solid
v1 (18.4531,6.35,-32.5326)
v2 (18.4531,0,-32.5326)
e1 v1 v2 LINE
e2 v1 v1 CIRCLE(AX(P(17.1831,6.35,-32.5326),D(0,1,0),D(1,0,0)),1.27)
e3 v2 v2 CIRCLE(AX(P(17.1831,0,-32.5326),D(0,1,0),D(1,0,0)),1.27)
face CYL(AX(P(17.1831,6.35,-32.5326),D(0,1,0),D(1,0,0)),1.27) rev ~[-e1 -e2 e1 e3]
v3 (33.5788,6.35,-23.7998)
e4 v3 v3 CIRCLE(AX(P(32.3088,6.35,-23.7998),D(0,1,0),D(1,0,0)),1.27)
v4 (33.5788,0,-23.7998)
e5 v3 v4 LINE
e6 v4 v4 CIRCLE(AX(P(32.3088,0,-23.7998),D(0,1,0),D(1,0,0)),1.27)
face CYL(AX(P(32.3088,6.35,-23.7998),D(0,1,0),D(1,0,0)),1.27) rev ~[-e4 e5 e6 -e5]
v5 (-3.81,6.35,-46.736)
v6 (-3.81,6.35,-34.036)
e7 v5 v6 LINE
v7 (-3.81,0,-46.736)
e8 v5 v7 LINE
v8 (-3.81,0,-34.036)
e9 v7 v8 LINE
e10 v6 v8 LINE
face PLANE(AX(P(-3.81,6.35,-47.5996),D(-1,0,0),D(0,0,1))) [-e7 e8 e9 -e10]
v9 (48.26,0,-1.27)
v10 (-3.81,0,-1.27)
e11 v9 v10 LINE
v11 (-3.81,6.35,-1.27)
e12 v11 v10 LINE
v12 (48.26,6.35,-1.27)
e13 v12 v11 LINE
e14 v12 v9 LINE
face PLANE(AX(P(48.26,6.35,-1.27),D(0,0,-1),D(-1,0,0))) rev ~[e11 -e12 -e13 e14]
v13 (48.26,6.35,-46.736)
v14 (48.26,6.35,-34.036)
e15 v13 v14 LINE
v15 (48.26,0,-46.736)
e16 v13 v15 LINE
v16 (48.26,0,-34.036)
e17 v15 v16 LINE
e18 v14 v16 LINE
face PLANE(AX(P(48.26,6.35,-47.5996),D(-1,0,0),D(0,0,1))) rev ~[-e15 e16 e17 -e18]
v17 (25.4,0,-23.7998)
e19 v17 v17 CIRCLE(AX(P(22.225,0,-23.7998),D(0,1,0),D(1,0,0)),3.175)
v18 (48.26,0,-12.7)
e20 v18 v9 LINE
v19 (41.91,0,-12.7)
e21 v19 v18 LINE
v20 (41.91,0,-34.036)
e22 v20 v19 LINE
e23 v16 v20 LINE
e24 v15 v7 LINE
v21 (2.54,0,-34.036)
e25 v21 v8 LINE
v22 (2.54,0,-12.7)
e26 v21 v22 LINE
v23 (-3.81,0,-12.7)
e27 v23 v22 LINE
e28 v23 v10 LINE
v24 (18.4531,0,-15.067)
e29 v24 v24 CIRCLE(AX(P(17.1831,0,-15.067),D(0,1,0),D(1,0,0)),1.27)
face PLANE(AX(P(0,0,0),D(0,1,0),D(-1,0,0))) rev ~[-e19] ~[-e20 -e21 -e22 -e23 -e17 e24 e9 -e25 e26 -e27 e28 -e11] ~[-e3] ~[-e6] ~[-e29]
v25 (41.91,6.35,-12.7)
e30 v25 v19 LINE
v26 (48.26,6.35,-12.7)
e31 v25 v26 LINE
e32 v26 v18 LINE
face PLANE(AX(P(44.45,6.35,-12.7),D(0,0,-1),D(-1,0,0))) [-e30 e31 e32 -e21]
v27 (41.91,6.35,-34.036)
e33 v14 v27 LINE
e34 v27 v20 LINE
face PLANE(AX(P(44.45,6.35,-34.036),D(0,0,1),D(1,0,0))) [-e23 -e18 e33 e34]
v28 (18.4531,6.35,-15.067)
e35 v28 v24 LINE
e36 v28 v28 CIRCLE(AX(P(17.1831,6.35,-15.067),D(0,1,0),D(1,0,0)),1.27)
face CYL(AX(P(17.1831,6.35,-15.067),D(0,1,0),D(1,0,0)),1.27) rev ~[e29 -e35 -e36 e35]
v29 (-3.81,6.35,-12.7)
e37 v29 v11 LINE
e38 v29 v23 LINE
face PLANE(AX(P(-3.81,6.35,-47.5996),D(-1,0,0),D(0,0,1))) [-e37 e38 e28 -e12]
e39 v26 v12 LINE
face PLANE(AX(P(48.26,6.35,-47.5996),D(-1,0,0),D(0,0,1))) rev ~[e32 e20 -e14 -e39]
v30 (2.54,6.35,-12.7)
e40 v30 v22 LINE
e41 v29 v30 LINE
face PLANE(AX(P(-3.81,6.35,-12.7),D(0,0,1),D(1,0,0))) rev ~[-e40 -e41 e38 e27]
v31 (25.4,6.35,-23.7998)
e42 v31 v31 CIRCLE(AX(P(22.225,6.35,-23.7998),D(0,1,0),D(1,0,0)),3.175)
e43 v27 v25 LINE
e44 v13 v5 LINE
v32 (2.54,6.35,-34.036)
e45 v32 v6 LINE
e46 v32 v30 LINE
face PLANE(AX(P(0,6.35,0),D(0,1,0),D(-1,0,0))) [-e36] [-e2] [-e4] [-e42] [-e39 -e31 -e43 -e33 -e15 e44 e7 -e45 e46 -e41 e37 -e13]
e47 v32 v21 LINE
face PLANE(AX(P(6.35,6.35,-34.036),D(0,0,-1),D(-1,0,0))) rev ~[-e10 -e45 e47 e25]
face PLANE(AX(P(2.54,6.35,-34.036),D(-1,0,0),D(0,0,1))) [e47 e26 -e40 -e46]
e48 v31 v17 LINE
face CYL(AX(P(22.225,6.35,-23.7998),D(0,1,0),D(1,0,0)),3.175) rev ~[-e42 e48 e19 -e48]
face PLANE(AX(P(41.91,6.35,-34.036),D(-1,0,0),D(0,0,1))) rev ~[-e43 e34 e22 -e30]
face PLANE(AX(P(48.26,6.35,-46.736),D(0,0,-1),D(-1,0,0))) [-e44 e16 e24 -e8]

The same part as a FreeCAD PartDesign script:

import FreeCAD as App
import Part
import Sketcher
from FreeCAD import Vector
Q = App.Units.Quantity

doc = App.newDocument("Part")
params = doc.addObject("Spreadsheet::Sheet", "Params")
for row, (alias, value) in enumerate([
    ("sketch1_width", "1.75 in"),
    ("sketch1_height", "1.874 in"),
    ("pad1_length", "0.25 in"),
    ("sketch2_width", "0.25 in"),
    ("sketch2_height", "0.84 in"),
    ("pocket1_length", "0.25 in"),
    ("sketch3_diameter", "0.1 in"),
    ("sketch3_diameter2", "0.25 in"),
    ("pocket2_length", "0.25 in"),
    ("sketch4_width", "0.15 in"),
    ("sketch4_height", "0.84 in"),
    ("sketch4_height2", "1.874 in"),
    ("pad2_length", "0.25 in"),
    ("sketch5_width", "0.15 in"),
    ("sketch5_height", "0.84 in"),
    ("pocket3_length", "0.25 in"),
    ("sketch6_height", "0.05 in"),
    ("sketch6_height2", "0.034 in"),
    ("sketch6_width", "2.05 in"),
    ("pocket4_length", "1 in"),
], start=1):
    params.set(f"A{row}", alias)
    params.set(f"B{row}", "=" + value)
    params.setAlias(f"B{row}", alias)

body = doc.addObject("PartDesign::Body", "Body")

sketch1 = body.newObject("Sketcher::SketchObject", "Sketch")
sketch1.AttachmentSupport = (doc.getObject("XZ_Plane"), [""])
sketch1.MapMode = "FlatFace"
sketch1.addGeometry(Part.LineSegment(Vector(0, -48, 0), Vector(0, 0, 0)), False)
sketch1.addGeometry(Part.LineSegment(Vector(0, 0, 0), Vector(44, 0, 0)), False)
sketch1.addGeometry(Part.LineSegment(Vector(44, 0, 0), Vector(44, -48, 0)), False)
sketch1.addGeometry(Part.LineSegment(Vector(44, -48, 0), Vector(0, -48, 0)), False)
sketch1.addConstraint(Sketcher.Constraint("Coincident", 0, 2, 1, 1))
sketch1.addConstraint(Sketcher.Constraint("Coincident", 1, 2, 2, 1))
sketch1.addConstraint(Sketcher.Constraint("Coincident", 2, 2, 3, 1))
sketch1.addConstraint(Sketcher.Constraint("Coincident", 3, 2, 0, 1))
sketch1.addConstraint(Sketcher.Constraint("Vertical", 0))
sketch1.addConstraint(Sketcher.Constraint("Horizontal", 1))
sketch1.addConstraint(Sketcher.Constraint("Vertical", 2))
sketch1.addConstraint(Sketcher.Constraint("Horizontal", 3))
sketch1.addConstraint(Sketcher.Constraint("Coincident", 0, 2, -1, 1))
sketch1.addConstraint(Sketcher.Constraint("DistanceX", 1, 1, 1, 2, Q("1.75 in")))
sketch1.addConstraint(Sketcher.Constraint("DistanceY", 0, 1, 0, 2, Q("1.874 in")))
sketch1.setExpression("Constraints[9]", "Params.sketch1_width")
sketch1.setExpression("Constraints[10]", "Params.sketch1_height")
pad1 = body.newObject("PartDesign::Pad", "Pad")
pad1.Profile = sketch1
pad1.setExpression("Length", "Params.pad1_length")
pad1.Reversed = True

sketch2 = body.newObject("Sketcher::SketchObject", "Sketch001")
sketch2.AttachmentSupport = (doc.getObject("XZ_Plane"), [""])
sketch2.MapMode = "FlatFace"
sketch2.AttachmentOffset = App.Placement(Vector(0, 0, -0.25 * 25.4), App.Rotation())
sketch2.addGeometry(Part.LineSegment(Vector(6, -34, 0), Vector(0, -34, 0)), False)
sketch2.addGeometry(Part.LineSegment(Vector(0, -34, 0), Vector(0, -13, 0)), False)
sketch2.addGeometry(Part.LineSegment(Vector(0, -13, 0), Vector(6, -13, 0)), False)
sketch2.addGeometry(Part.LineSegment(Vector(6, -13, 0), Vector(6, -34, 0)), False)
sketch2.addGeometry(Part.LineSegment(Vector(38, -13, 0), Vector(44, -13, 0)), False)
sketch2.addGeometry(Part.LineSegment(Vector(44, -13, 0), Vector(44, -34, 0)), False)
sketch2.addGeometry(Part.LineSegment(Vector(44, -34, 0), Vector(38, -34, 0)), False)
sketch2.addGeometry(Part.LineSegment(Vector(38, -34, 0), Vector(38, -13, 0)), False)
sketch2.addConstraint(Sketcher.Constraint("Coincident", 0, 2, 1, 1))
sketch2.addConstraint(Sketcher.Constraint("Coincident", 1, 2, 2, 1))
sketch2.addConstraint(Sketcher.Constraint("Coincident", 2, 2, 3, 1))
sketch2.addConstraint(Sketcher.Constraint("Coincident", 3, 2, 0, 1))
sketch2.addConstraint(Sketcher.Constraint("Coincident", 4, 2, 5, 1))
sketch2.addConstraint(Sketcher.Constraint("Coincident", 5, 2, 6, 1))
sketch2.addConstraint(Sketcher.Constraint("Coincident", 6, 2, 7, 1))
sketch2.addConstraint(Sketcher.Constraint("Coincident", 7, 2, 4, 1))
sketch2.addConstraint(Sketcher.Constraint("Horizontal", 0))
sketch2.addConstraint(Sketcher.Constraint("Vertical", 1))
sketch2.addConstraint(Sketcher.Constraint("Horizontal", 2))
sketch2.addConstraint(Sketcher.Constraint("Vertical", 3))
sketch2.addConstraint(Sketcher.Constraint("Horizontal", 4))
sketch2.addConstraint(Sketcher.Constraint("Vertical", 5))
sketch2.addConstraint(Sketcher.Constraint("Horizontal", 6))
sketch2.addConstraint(Sketcher.Constraint("Vertical", 7))
sketch2.addConstraint(Sketcher.Constraint("PointOnObject", 0, 2, -2))
sketch2.addConstraint(Sketcher.Constraint("Horizontal", 2, 2, 4, 2))
sketch2.addConstraint(Sketcher.Constraint("Horizontal", 3, 2, 5, 2))
sketch2.addConstraint(Sketcher.Constraint("Equal", 2, 4))
sketch2.addConstraint(Sketcher.Constraint("DistanceX", 0, 2, 0, 1, Q("0.25 in")))
sketch2.addConstraint(Sketcher.Constraint("DistanceY", 1, 1, 1, 2, Q("0.84 in")))
sketch2.addConstraint(Sketcher.Constraint("DistanceY", 1, 2, -1, 1, Q("0.5 in")))
sketch2.addConstraint(Sketcher.Constraint("DistanceX", -1, 1, 6, 2, Q("1.5 in")))
sketch2.setExpression("Constraints[20]", "Params.sketch2_width")
sketch2.setExpression("Constraints[21]", "Params.sketch2_height")
pocket1 = body.newObject("PartDesign::Pocket", "Pocket")
pocket1.Profile = sketch2
pocket1.setExpression("Length", "Params.pocket1_length")
pocket1.Reversed = True

sketch3 = body.newObject("Sketcher::SketchObject", "Sketch002")
sketch3.AttachmentSupport = (doc.getObject("XZ_Plane"), [""])
sketch3.MapMode = "FlatFace"
sketch3.AttachmentOffset = App.Placement(Vector(0, 0, -0.25 * 25.4), App.Rotation())
sketch3.addGeometry(Part.Circle(Vector(22.2, -23.8, 0), Vector(0, 0, 1), 3.2), False)
sketch3.addGeometry(Part.Circle(Vector(32.3, -23.8, 0), Vector(0, 0, 1), 1.3), False)
sketch3.addGeometry(Part.Circle(Vector(17.2, -32.5, 0), Vector(0, 0, 1), 1.3), False)
sketch3.addGeometry(Part.Circle(Vector(17.2, -15.1, 0), Vector(0, 0, 1), 1.3), False)
sketch3.addConstraint(Sketcher.Constraint("Equal", 1, 2))
sketch3.addConstraint(Sketcher.Constraint("Equal", 2, 3))
sketch3.addConstraint(Sketcher.Constraint("Horizontal", 0, 3, 1, 3))
sketch3.addConstraint(Sketcher.Constraint("Vertical", 2, 3, 3, 3))
sketch3.addConstraint(Sketcher.Constraint("Diameter", 1, Q("0.1 in")))
sketch3.addConstraint(Sketcher.Constraint("Diameter", 0, Q("0.25 in")))
sketch3.addConstraint(Sketcher.Constraint("DistanceX", -1, 1, 0, 3, Q("0.875 in")))
sketch3.addConstraint(Sketcher.Constraint("DistanceY", 0, 3, -1, 1, Q("0.937 in")))
sketch3.addConstraint(Sketcher.Constraint("DistanceX", -1, 1, 1, 3, Q("1.272 in")))
sketch3.addConstraint(Sketcher.Constraint("DistanceX", -1, 1, 2, 3, Q("0.6765 in")))
sketch3.addConstraint(Sketcher.Constraint("DistanceY", 2, 3, -1, 1, Q("1.2808 in")))
sketch3.addConstraint(Sketcher.Constraint("DistanceY", 3, 3, -1, 1, Q("0.5932 in")))
sketch3.setExpression("Constraints[4]", "Params.sketch3_diameter")
sketch3.setExpression("Constraints[5]", "Params.sketch3_diameter2")
pocket2 = body.newObject("PartDesign::Pocket", "Pocket001")
pocket2.Profile = sketch3
pocket2.setExpression("Length", "Params.pocket2_length")
pocket2.Reversed = True

sketch4 = body.newObject("Sketcher::SketchObject", "Sketch003")
sketch4.AttachmentSupport = (doc.getObject("XZ_Plane"), [""])
sketch4.MapMode = "FlatFace"
sketch4.AttachmentOffset = App.Placement(Vector(0, 0, -0.25 * 25.4), App.Rotation())
sketch4.addGeometry(Part.LineSegment(Vector(38.1, -12.7, 0), Vector(41.9, -12.7, 0)), False)
sketch4.addGeometry(Part.LineSegment(Vector(41.9, -12.7, 0), Vector(41.9, -34, 0)), False)
sketch4.addGeometry(Part.LineSegment(Vector(41.9, -34, 0), Vector(38.1, -34, 0)), False)
sketch4.addGeometry(Part.LineSegment(Vector(38.1, -34, 0), Vector(38.1, -12.7, 0)), False)
sketch4.addGeometry(Part.LineSegment(Vector(48.3, -47.6, 0), Vector(44.5, -47.6, 0)), False)
sketch4.addGeometry(Part.LineSegment(Vector(44.5, -47.6, 0), Vector(44.5, 0, 0)), False)
sketch4.addGeometry(Part.LineSegment(Vector(44.5, 0, 0), Vector(48.3, 0, 0)), False)
sketch4.addGeometry(Part.LineSegment(Vector(48.3, 0, 0), Vector(48.3, -47.6, 0)), False)
sketch4.addGeometry(Part.LineSegment(Vector(0, 0, 0), Vector(0, -47.6, 0)), False)
sketch4.addGeometry(Part.LineSegment(Vector(0, -47.6, 0), Vector(-3.8, -47.6, 0)), False)
sketch4.addGeometry(Part.LineSegment(Vector(-3.8, -47.6, 0), Vector(-3.8, 0, 0)), False)
sketch4.addGeometry(Part.LineSegment(Vector(-3.8, 0, 0), Vector(0, 0, 0)), False)
sketch4.addGeometry(Part.LineSegment(Vector(2.5, -34, 0), Vector(2.5, -12.7, 0)), False)
sketch4.addGeometry(Part.LineSegment(Vector(2.5, -12.7, 0), Vector(6.3, -12.7, 0)), False)
sketch4.addGeometry(Part.LineSegment(Vector(6.3, -12.7, 0), Vector(6.3, -34, 0)), False)
sketch4.addGeometry(Part.LineSegment(Vector(6.3, -34, 0), Vector(2.5, -34, 0)), False)
sketch4.addConstraint(Sketcher.Constraint("Coincident", 0, 2, 1, 1))
sketch4.addConstraint(Sketcher.Constraint("Coincident", 1, 2, 2, 1))
sketch4.addConstraint(Sketcher.Constraint("Coincident", 2, 2, 3, 1))
sketch4.addConstraint(Sketcher.Constraint("Coincident", 3, 2, 0, 1))
sketch4.addConstraint(Sketcher.Constraint("Coincident", 4, 2, 5, 1))
sketch4.addConstraint(Sketcher.Constraint("Coincident", 5, 2, 6, 1))
sketch4.addConstraint(Sketcher.Constraint("Coincident", 6, 2, 7, 1))
sketch4.addConstraint(Sketcher.Constraint("Coincident", 7, 2, 4, 1))
sketch4.addConstraint(Sketcher.Constraint("Coincident", 8, 2, 9, 1))
sketch4.addConstraint(Sketcher.Constraint("Coincident", 9, 2, 10, 1))
sketch4.addConstraint(Sketcher.Constraint("Coincident", 10, 2, 11, 1))
sketch4.addConstraint(Sketcher.Constraint("Coincident", 11, 2, 8, 1))
sketch4.addConstraint(Sketcher.Constraint("Coincident", 12, 2, 13, 1))
sketch4.addConstraint(Sketcher.Constraint("Coincident", 13, 2, 14, 1))
sketch4.addConstraint(Sketcher.Constraint("Coincident", 14, 2, 15, 1))
sketch4.addConstraint(Sketcher.Constraint("Coincident", 15, 2, 12, 1))
sketch4.addConstraint(Sketcher.Constraint("Horizontal", 0))
sketch4.addConstraint(Sketcher.Constraint("Vertical", 1))
sketch4.addConstraint(Sketcher.Constraint("Horizontal", 2))
sketch4.addConstraint(Sketcher.Constraint("Vertical", 3))
sketch4.addConstraint(Sketcher.Constraint("Horizontal", 4))
sketch4.addConstraint(Sketcher.Constraint("Vertical", 5))
sketch4.addConstraint(Sketcher.Constraint("Horizontal", 6))
sketch4.addConstraint(Sketcher.Constraint("Vertical", 7))
sketch4.addConstraint(Sketcher.Constraint("Vertical", 8))
sketch4.addConstraint(Sketcher.Constraint("Horizontal", 9))
sketch4.addConstraint(Sketcher.Constraint("Vertical", 10))
sketch4.addConstraint(Sketcher.Constraint("Horizontal", 11))
sketch4.addConstraint(Sketcher.Constraint("Vertical", 12))
sketch4.addConstraint(Sketcher.Constraint("Horizontal", 13))
sketch4.addConstraint(Sketcher.Constraint("Vertical", 14))
sketch4.addConstraint(Sketcher.Constraint("Horizontal", 15))
sketch4.addConstraint(Sketcher.Constraint("Coincident", 11, 2, -1, 1))
sketch4.addConstraint(Sketcher.Constraint("PointOnObject", 5, 2, -1))
sketch4.addConstraint(Sketcher.Constraint("Horizontal", 7, 2, 8, 2))
sketch4.addConstraint(Sketcher.Constraint("Horizontal", 3, 2, 12, 2))
sketch4.addConstraint(Sketcher.Constraint("Horizontal", 2, 2, 14, 2))
sketch4.addConstraint(Sketcher.Constraint("Equal", 2, 4))
sketch4.addConstraint(Sketcher.Constraint("Equal", 6, 9))
sketch4.addConstraint(Sketcher.Constraint("Equal", 11, 13))
sketch4.addConstraint(Sketcher.Constraint("DistanceX", 0, 1, 0, 2, Q("0.15 in")))
sketch4.addConstraint(Sketcher.Constraint("DistanceY", 1, 2, 1, 1, Q("0.84 in")))
sketch4.addConstraint(Sketcher.Constraint("DistanceY", 0, 2, -1, 1, Q("0.5 in")))
sketch4.addConstraint(Sketcher.Constraint("DistanceX", -1, 1, 2, 2, Q("1.5 in")))
sketch4.addConstraint(Sketcher.Constraint("DistanceX", -1, 1, 6, 2, Q("1.9 in")))
sketch4.addConstraint(Sketcher.Constraint("DistanceX", -1, 1, 12, 2, Q("0.1 in")))
sketch4.addConstraint(Sketcher.Constraint("DistanceY", 5, 1, 5, 2, Q("1.874 in")))
sketch4.setExpression("Constraints[40]", "Params.sketch4_width")
sketch4.setExpression("Constraints[41]", "Params.sketch4_height")
sketch4.setExpression("Constraints[46]", "Params.sketch4_height2")
pad2 = body.newObject("PartDesign::Pad", "Pad001")
pad2.Profile = sketch4
pad2.setExpression("Length", "Params.pad2_length")

sketch5 = body.newObject("Sketcher::SketchObject", "Sketch004")
sketch5.AttachmentSupport = (doc.getObject("XZ_Plane"), [""])
sketch5.MapMode = "FlatFace"
sketch5.AttachmentOffset = App.Placement(Vector(0, 0, -0.25 * 25.4), App.Rotation())
sketch5.addGeometry(Part.LineSegment(Vector(-3.8, -34, 0), Vector(-3.8, -12.7, 0)), False)
sketch5.addGeometry(Part.LineSegment(Vector(-3.8, -12.7, 0), Vector(0, -12.7, 0)), False)
sketch5.addGeometry(Part.LineSegment(Vector(0, -12.7, 0), Vector(0, -34, 0)), False)
sketch5.addGeometry(Part.LineSegment(Vector(0, -34, 0), Vector(-3.8, -34, 0)), False)
sketch5.addGeometry(Part.LineSegment(Vector(48.3, -12.7, 0), Vector(48.3, -34, 0)), False)
sketch5.addGeometry(Part.LineSegment(Vector(48.3, -34, 0), Vector(44.5, -34, 0)), False)
sketch5.addGeometry(Part.LineSegment(Vector(44.5, -34, 0), Vector(44.5, -12.7, 0)), False)
sketch5.addGeometry(Part.LineSegment(Vector(44.5, -12.7, 0), Vector(48.3, -12.7, 0)), False)
sketch5.addConstraint(Sketcher.Constraint("Coincident", 0, 2, 1, 1))
sketch5.addConstraint(Sketcher.Constraint("Coincident", 1, 2, 2, 1))
sketch5.addConstraint(Sketcher.Constraint("Coincident", 2, 2, 3, 1))
sketch5.addConstraint(Sketcher.Constraint("Coincident", 3, 2, 0, 1))
sketch5.addConstraint(Sketcher.Constraint("Coincident", 4, 2, 5, 1))
sketch5.addConstraint(Sketcher.Constraint("Coincident", 5, 2, 6, 1))
sketch5.addConstraint(Sketcher.Constraint("Coincident", 6, 2, 7, 1))
sketch5.addConstraint(Sketcher.Constraint("Coincident", 7, 2, 4, 1))
sketch5.addConstraint(Sketcher.Constraint("Vertical", 0))
sketch5.addConstraint(Sketcher.Constraint("Horizontal", 1))
sketch5.addConstraint(Sketcher.Constraint("Vertical", 2))
sketch5.addConstraint(Sketcher.Constraint("Horizontal", 3))
sketch5.addConstraint(Sketcher.Constraint("Vertical", 4))
sketch5.addConstraint(Sketcher.Constraint("Horizontal", 5))
sketch5.addConstraint(Sketcher.Constraint("Vertical", 6))
sketch5.addConstraint(Sketcher.Constraint("Horizontal", 7))
sketch5.addConstraint(Sketcher.Constraint("PointOnObject", 1, 2, -2))
sketch5.addConstraint(Sketcher.Constraint("Horizontal", 3, 2, 4, 2))
sketch5.addConstraint(Sketcher.Constraint("Horizontal", 1, 2, 6, 2))
sketch5.addConstraint(Sketcher.Constraint("Equal", 3, 5))
sketch5.addConstraint(Sketcher.Constraint("DistanceX", 1, 1, 1, 2, Q("0.15 in")))
sketch5.addConstraint(Sketcher.Constraint("DistanceY", 0, 1, 0, 2, Q("0.84 in")))
sketch5.addConstraint(Sketcher.Constraint("DistanceY", 0, 2, -1, 1, Q("0.5 in")))
sketch5.addConstraint(Sketcher.Constraint("DistanceX", -1, 1, 4, 2, Q("1.9 in")))
sketch5.setExpression("Constraints[20]", "Params.sketch5_width")
sketch5.setExpression("Constraints[21]", "Params.sketch5_height")
pocket3 = body.newObject("PartDesign::Pocket", "Pocket002")
pocket3.Profile = sketch5
pocket3.setExpression("Length", "Params.pocket3_length")
pocket3.Reversed = True

sketch6 = body.newObject("Sketcher::SketchObject", "Sketch005")
sketch6.AttachmentSupport = (doc.getObject("XZ_Plane"), [""])
sketch6.MapMode = "FlatFace"
sketch6.AttachmentOffset = App.Placement(Vector(0, 0, -0.25 * 25.4), App.Rotation())
sketch6.addGeometry(Part.LineSegment(Vector(48.3, 0, 0), Vector(48.3, -1.3, 0)), False)
sketch6.addGeometry(Part.LineSegment(Vector(48.3, -1.3, 0), Vector(-3.8, -1.3, 0)), False)
sketch6.addGeometry(Part.LineSegment(Vector(-3.8, -1.3, 0), Vector(-3.8, 0, 0)), False)
sketch6.addGeometry(Part.LineSegment(Vector(-3.8, 0, 0), Vector(48.3, 0, 0)), False)
sketch6.addGeometry(Part.LineSegment(Vector(48.3, -46.7, 0), Vector(48.3, -47.6, 0)), False)
sketch6.addGeometry(Part.LineSegment(Vector(48.3, -47.6, 0), Vector(-3.8, -47.6, 0)), False)
sketch6.addGeometry(Part.LineSegment(Vector(-3.8, -47.6, 0), Vector(-3.8, -46.7, 0)), False)
sketch6.addGeometry(Part.LineSegment(Vector(-3.8, -46.7, 0), Vector(48.3, -46.7, 0)), False)
sketch6.addConstraint(Sketcher.Constraint("Coincident", 0, 2, 1, 1))
sketch6.addConstraint(Sketcher.Constraint("Coincident", 1, 2, 2, 1))
sketch6.addConstraint(Sketcher.Constraint("Coincident", 2, 2, 3, 1))
sketch6.addConstraint(Sketcher.Constraint("Coincident", 3, 2, 0, 1))
sketch6.addConstraint(Sketcher.Constraint("Coincident", 4, 2, 5, 1))
sketch6.addConstraint(Sketcher.Constraint("Coincident", 5, 2, 6, 1))
sketch6.addConstraint(Sketcher.Constraint("Coincident", 6, 2, 7, 1))
sketch6.addConstraint(Sketcher.Constraint("Coincident", 7, 2, 4, 1))
sketch6.addConstraint(Sketcher.Constraint("Vertical", 0))
sketch6.addConstraint(Sketcher.Constraint("Horizontal", 1))
sketch6.addConstraint(Sketcher.Constraint("Vertical", 2))
sketch6.addConstraint(Sketcher.Constraint("Horizontal", 3))
sketch6.addConstraint(Sketcher.Constraint("Vertical", 4))
sketch6.addConstraint(Sketcher.Constraint("Horizontal", 5))
sketch6.addConstraint(Sketcher.Constraint("Vertical", 6))
sketch6.addConstraint(Sketcher.Constraint("Horizontal", 7))
sketch6.addConstraint(Sketcher.Constraint("PointOnObject", 2, 2, -1))
sketch6.addConstraint(Sketcher.Constraint("Vertical", 3, 2, 4, 2))
sketch6.addConstraint(Sketcher.Constraint("Vertical", 2, 2, 5, 2))
sketch6.addConstraint(Sketcher.Constraint("DistanceY", 0, 2, 0, 1, Q("0.05 in")))
sketch6.addConstraint(Sketcher.Constraint("DistanceY", 4, 2, 4, 1, Q("0.034 in")))
sketch6.addConstraint(Sketcher.Constraint("DistanceX", 1, 2, 1, 1, Q("2.05 in")))
sketch6.addConstraint(Sketcher.Constraint("DistanceX", -1, 1, 0, 2, Q("1.9 in")))
sketch6.addConstraint(Sketcher.Constraint("DistanceY", 6, 2, -1, 1, Q("1.84 in")))
sketch6.setExpression("Constraints[19]", "Params.sketch6_height")
sketch6.setExpression("Constraints[20]", "Params.sketch6_height2")
sketch6.setExpression("Constraints[21]", "Params.sketch6_width")
pocket4 = body.newObject("PartDesign::Pocket", "Pocket003")
pocket4.Profile = sketch6
pocket4.setExpression("Length", "Params.pocket4_length")
pocket4.Reversed = True

doc.recompute()
